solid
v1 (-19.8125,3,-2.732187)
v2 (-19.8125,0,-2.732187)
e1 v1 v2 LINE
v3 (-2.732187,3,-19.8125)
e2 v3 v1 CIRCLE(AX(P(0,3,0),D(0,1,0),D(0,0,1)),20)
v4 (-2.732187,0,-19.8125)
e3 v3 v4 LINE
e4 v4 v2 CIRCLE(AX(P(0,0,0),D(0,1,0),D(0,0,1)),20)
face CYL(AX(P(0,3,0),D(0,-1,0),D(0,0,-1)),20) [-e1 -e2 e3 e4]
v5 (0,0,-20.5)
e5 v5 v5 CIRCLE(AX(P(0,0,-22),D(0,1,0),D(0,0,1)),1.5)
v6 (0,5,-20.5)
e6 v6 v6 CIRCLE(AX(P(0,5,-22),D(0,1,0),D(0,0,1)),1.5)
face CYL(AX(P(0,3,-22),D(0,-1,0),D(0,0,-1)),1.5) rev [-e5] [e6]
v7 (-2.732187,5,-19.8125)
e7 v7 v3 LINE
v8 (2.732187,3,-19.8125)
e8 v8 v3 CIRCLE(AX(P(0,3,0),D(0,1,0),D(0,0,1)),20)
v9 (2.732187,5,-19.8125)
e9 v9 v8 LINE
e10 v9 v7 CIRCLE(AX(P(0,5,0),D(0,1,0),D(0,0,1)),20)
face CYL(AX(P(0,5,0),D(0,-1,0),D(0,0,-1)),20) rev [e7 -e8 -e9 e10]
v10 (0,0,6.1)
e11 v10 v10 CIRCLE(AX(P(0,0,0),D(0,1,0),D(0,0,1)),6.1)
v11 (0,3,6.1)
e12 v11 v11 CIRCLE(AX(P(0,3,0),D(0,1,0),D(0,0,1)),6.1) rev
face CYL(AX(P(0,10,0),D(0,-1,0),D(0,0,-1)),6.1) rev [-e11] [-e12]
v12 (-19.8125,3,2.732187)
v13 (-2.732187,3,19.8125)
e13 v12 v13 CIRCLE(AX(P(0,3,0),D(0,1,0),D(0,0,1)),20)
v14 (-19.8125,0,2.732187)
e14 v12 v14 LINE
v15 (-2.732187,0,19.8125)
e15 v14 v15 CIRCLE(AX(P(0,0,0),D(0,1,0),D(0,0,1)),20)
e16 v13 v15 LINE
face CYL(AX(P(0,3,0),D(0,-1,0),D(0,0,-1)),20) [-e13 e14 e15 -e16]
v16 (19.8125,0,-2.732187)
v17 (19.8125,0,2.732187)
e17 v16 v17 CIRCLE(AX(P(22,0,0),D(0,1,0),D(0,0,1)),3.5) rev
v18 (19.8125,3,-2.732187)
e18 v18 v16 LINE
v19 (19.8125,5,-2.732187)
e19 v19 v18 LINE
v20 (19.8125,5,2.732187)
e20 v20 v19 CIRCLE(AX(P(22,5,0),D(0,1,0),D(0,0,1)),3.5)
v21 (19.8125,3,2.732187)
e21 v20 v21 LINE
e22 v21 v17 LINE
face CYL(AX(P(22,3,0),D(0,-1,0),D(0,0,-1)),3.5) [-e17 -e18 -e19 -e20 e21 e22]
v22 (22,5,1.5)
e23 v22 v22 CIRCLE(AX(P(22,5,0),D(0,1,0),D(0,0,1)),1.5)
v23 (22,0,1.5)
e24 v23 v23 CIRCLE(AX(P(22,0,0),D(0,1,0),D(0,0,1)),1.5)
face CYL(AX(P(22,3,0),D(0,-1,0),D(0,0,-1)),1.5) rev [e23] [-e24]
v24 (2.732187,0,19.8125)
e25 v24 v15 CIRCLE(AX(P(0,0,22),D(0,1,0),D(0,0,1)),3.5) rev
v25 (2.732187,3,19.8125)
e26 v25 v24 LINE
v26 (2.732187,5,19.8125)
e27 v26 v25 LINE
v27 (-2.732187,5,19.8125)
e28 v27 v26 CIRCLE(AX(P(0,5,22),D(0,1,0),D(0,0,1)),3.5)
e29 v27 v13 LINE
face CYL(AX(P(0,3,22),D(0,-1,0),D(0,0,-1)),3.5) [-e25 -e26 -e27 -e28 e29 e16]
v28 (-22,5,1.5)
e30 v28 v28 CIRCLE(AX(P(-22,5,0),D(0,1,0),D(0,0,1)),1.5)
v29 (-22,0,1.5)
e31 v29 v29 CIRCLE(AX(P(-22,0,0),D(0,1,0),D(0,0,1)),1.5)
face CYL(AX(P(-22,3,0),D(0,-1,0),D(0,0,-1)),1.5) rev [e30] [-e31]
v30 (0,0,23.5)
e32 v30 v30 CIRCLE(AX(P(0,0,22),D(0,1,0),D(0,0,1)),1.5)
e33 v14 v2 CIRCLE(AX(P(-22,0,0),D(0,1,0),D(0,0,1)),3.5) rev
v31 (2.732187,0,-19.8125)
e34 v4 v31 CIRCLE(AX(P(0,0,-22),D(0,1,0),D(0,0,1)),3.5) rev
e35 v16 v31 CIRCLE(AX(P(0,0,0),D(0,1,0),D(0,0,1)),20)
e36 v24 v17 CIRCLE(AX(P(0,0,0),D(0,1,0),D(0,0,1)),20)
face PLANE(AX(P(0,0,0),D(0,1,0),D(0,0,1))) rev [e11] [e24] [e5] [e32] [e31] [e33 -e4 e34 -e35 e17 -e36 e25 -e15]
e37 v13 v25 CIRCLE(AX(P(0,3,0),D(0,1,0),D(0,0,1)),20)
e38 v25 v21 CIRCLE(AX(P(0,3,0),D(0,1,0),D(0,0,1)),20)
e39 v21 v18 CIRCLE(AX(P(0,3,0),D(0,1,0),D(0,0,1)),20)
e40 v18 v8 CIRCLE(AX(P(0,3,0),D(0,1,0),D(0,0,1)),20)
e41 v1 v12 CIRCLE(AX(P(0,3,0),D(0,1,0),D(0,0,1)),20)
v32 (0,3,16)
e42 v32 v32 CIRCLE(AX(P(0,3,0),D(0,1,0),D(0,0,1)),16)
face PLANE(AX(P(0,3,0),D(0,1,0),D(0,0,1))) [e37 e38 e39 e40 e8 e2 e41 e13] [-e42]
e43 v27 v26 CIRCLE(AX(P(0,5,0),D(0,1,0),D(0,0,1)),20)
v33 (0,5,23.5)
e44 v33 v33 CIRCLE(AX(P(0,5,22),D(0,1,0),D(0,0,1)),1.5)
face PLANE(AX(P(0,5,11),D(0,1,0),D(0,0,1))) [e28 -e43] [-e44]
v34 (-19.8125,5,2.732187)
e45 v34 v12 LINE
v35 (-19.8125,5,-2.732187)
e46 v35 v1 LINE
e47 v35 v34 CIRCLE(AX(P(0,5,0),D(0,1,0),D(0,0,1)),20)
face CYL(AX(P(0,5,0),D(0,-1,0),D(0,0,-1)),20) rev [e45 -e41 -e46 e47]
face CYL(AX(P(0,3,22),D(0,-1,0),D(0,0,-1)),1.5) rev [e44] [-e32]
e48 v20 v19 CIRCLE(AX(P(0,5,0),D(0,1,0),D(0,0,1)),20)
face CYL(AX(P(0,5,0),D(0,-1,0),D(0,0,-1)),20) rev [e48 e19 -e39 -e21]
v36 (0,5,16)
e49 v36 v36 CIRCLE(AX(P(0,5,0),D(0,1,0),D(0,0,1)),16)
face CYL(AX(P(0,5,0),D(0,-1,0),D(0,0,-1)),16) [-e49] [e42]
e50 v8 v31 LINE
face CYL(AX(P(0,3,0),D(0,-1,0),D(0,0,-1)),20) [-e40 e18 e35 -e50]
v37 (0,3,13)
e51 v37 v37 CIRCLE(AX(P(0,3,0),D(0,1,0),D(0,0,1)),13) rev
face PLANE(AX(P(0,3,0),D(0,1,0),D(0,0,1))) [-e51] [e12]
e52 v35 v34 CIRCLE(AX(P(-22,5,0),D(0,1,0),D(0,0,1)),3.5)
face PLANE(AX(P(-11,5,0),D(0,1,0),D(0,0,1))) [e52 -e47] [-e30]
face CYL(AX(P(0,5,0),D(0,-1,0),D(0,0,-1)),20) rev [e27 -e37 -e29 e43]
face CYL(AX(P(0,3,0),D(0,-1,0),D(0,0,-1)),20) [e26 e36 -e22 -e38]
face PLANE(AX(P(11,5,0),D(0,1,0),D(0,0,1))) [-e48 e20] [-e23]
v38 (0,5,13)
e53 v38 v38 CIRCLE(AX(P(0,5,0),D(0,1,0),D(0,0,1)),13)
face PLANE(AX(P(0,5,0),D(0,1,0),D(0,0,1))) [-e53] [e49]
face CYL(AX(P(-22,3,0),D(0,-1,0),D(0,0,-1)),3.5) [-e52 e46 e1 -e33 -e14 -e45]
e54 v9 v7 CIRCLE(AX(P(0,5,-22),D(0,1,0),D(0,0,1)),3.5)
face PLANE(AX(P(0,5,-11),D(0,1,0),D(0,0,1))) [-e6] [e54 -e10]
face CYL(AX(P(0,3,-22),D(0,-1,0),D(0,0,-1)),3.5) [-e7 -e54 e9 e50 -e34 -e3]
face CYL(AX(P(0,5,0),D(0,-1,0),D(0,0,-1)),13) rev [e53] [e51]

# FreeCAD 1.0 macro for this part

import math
import FreeCAD as App
import Part
import Sketcher
from FreeCAD import Vector

doc = App.newDocument("Part")
params = doc.addObject("Spreadsheet::Sheet", "Params")
for row, (alias, value) in enumerate([
    ("sketch1_diameter", "3 mm"),
    ("sketch1_radius", "20 mm"),
    ("sketch1_radius2", "3.5 mm"),
    ("pad1_length", "3 mm"),
    ("sketch2_diameter", "3 mm"),
    ("sketch2_diameter2", "32 mm"),
    ("sketch2_diameter3", "26 mm"),
    ("sketch2_radius", "20 mm"),
    ("sketch2_radius2", "3.5 mm"),
    ("pad2_length", "2 mm"),
    ("sketch3_diameter", "12.2 mm"),
    ("pocket1_length", "10 mm"),
], start=1):
    params.set(f"A{row}", alias)
    params.set(f"B{row}", "=" + value)
    params.setAlias(f"B{row}", alias)

body = doc.addObject("PartDesign::Body", "Body")

# Sketch on XZ plane
sketch1 = body.newObject("Sketcher::SketchObject", "Sketch")
sketch1.AttachmentSupport = (doc.getObject("XZ_Plane"), [""])
sketch1.MapMode = "FlatFace"
sketch1.addGeometry([
    Part.ArcOfCircle(Part.Circle(Vector(0, 0, 0), Vector(0, 0, 1), 20), math.radians(-82), math.radians(-8)),  # 0
    Part.ArcOfCircle(Part.Circle(Vector(0, -22, 0), Vector(0, 0, 1), 3.5), math.radians(141), math.radians(399)),  # 1
    Part.ArcOfCircle(Part.Circle(Vector(0, 0, 0), Vector(0, 0, 1), 20), math.radians(-172), math.radians(-98)),  # 2
    Part.ArcOfCircle(Part.Circle(Vector(-22, 0, 0), Vector(0, 0, 1), 3.5), math.radians(51), math.radians(309)),  # 3
    Part.ArcOfCircle(Part.Circle(Vector(0, 0, 0), Vector(0, 0, 1), 20), math.radians(98), math.radians(172)),  # 4
    Part.ArcOfCircle(Part.Circle(Vector(0, 22, 0), Vector(0, 0, 1), 3.5), math.radians(-39), math.radians(219)),  # 5
    Part.ArcOfCircle(Part.Circle(Vector(0, 0, 0), Vector(0, 0, 1), 20), math.radians(8), math.radians(82)),  # 6
    Part.ArcOfCircle(Part.Circle(Vector(22, 0, 0), Vector(0, 0, 1), 3.5), math.radians(-129), math.radians(129)),  # 7
    Part.Circle(Vector(0, 22, 0), Vector(0, 0, 1), 1.5),  # 8
    Part.Circle(Vector(-22, 0, 0), Vector(0, 0, 1), 1.5),  # 9
    Part.Circle(Vector(22, 0, 0), Vector(0, 0, 1), 1.5),  # 10
    Part.Circle(Vector(0, -22, 0), Vector(0, 0, 1), 1.5),  # 11
], False)
sketch1.addConstraint([
    Sketcher.Constraint("Coincident", 0, 1, 1, 2),
    Sketcher.Constraint("Coincident", 1, 1, 2, 2),
    Sketcher.Constraint("Coincident", 2, 1, 3, 2),
    Sketcher.Constraint("Coincident", 3, 1, 4, 2),
    Sketcher.Constraint("Coincident", 4, 1, 5, 2),
    Sketcher.Constraint("Coincident", 5, 1, 6, 2),
    Sketcher.Constraint("Coincident", 6, 1, 7, 2),
    Sketcher.Constraint("Coincident", 7, 1, 0, 2),
    Sketcher.Constraint("Coincident", 0, 3, -1, 1),
    Sketcher.Constraint("Coincident", 2, 3, -1, 1),
    Sketcher.Constraint("Coincident", 4, 3, -1, 1),
    Sketcher.Constraint("Coincident", 6, 3, -1, 1),
    Sketcher.Constraint("Coincident", 8, 3, 5, 3),
    Sketcher.Constraint("Coincident", 9, 3, 3, 3),
    Sketcher.Constraint("Coincident", 10, 3, 7, 3),
    Sketcher.Constraint("Coincident", 11, 3, 1, 3),
    Sketcher.Constraint("Equal", 0, 2),
    Sketcher.Constraint("Equal", 1, 3),
    Sketcher.Constraint("Equal", 2, 4),
    Sketcher.Constraint("Equal", 3, 5),
    Sketcher.Constraint("Equal", 4, 6),
    Sketcher.Constraint("Equal", 5, 7),
    Sketcher.Constraint("Equal", 8, 9),
    Sketcher.Constraint("Equal", 9, 10),
    Sketcher.Constraint("Equal", 10, 11),
    Sketcher.Constraint("Symmetric", 1, 3, 5, 3, -1, 1),
    Sketcher.Constraint("Symmetric", 3, 3, 7, 3, -1, 1),
    Sketcher.Constraint("PointOnObject", 1, 3, -2),
    Sketcher.Constraint("PointOnObject", 3, 3, -1),
    Sketcher.Constraint("Diameter", 8, 3.0),
    Sketcher.Constraint("Radius", 0, 20.0),
    Sketcher.Constraint("Radius", 1, 3.5),
    Sketcher.Constraint("DistanceY", 1, 3, -1, 1, 22.0),
    Sketcher.Constraint("DistanceX", 3, 3, -1, 1, 22.0),
])
sketch1.setExpression("Constraints[29]", "Params.sketch1_diameter")
sketch1.setExpression("Constraints[30]", "Params.sketch1_radius")
sketch1.setExpression("Constraints[31]", "Params.sketch1_radius2")
pad1 = body.newObject("PartDesign::Pad", "Pad")
pad1.Profile = sketch1
pad1.setExpression("Length", "Params.pad1_length")
pad1.Reversed = True

# Sketch on XZ plane
sketch2 = body.newObject("Sketcher::SketchObject", "Sketch001")
sketch2.AttachmentSupport = (doc.getObject("XZ_Plane"), [""])
sketch2.MapMode = "FlatFace"
sketch2.AttachmentOffset = App.Placement(Vector(0, 0, -3), App.Rotation())
sketch2.addGeometry([
    Part.ArcOfCircle(Part.Circle(Vector(0, 22, 0), Vector(0, 0, 1), 3.5), math.radians(-39), math.radians(219)),  # 0
    Part.ArcOfCircle(Part.Circle(Vector(0, 0, 0), Vector(0, 0, 1), 20), math.radians(82.15), math.radians(97.85)),  # 1
    Part.Circle(Vector(0, 22, 0), Vector(0, 0, 1), 1.5),  # 2
    Part.ArcOfCircle(Part.Circle(Vector(0, 0, 0), Vector(0, 0, 1), 20), math.radians(-7.85), math.radians(0)),  # 3
    Part.ArcOfCircle(Part.Circle(Vector(0, 0, 0), Vector(0, 0, 1), 20), math.radians(0), math.radians(7.85)),  # 4
    Part.ArcOfCircle(Part.Circle(Vector(22, 0, 0), Vector(0, 0, 1), 3.5), math.radians(-129), math.radians(129)),  # 5
    Part.Circle(Vector(22, 0, 0), Vector(0, 0, 1), 1.5),  # 6
    Part.ArcOfCircle(Part.Circle(Vector(0, 0, 0), Vector(0, 0, 1), 20), math.radians(-97.85), math.radians(-82.15)),  # 7
    Part.ArcOfCircle(Part.Circle(Vector(0, -22, 0), Vector(0, 0, 1), 3.5), math.radians(141), math.radians(399)),  # 8
    Part.Circle(Vector(0, -22, 0), Vector(0, 0, 1), 1.5),  # 9
    Part.ArcOfCircle(Part.Circle(Vector(0, 0, 0), Vector(0, 0, 1), 20), math.radians(172.15), math.radians(187.85)),  # 10
    Part.ArcOfCircle(Part.Circle(Vector(-22, 0, 0), Vector(0, 0, 1), 3.5), math.radians(51), math.radians(309)),  # 11
    Part.Circle(Vector(-22, 0, 0), Vector(0, 0, 1), 1.5),  # 12
    Part.Circle(Vector(0, 0, 0), Vector(0, 0, 1), 16),  # 13
    Part.Circle(Vector(0, 0, 0), Vector(0, 0, 1), 13),  # 14
], False)
sketch2.addConstraint([
    Sketcher.Constraint("Coincident", 0, 1, 1, 1),
    Sketcher.Constraint("Coincident", 1, 2, 0, 2),
    Sketcher.Constraint("Tangent", 3, 2, 4, 1),
    Sketcher.Constraint("Coincident", 4, 2, 5, 2),
    Sketcher.Constraint("Coincident", 5, 1, 3, 1),
    Sketcher.Constraint("Coincident", 7, 1, 8, 1),
    Sketcher.Constraint("Coincident", 8, 2, 7, 2),
    Sketcher.Constraint("Coincident", 10, 1, 11, 1),
    Sketcher.Constraint("Coincident", 11, 2, 10, 2),
    Sketcher.Constraint("Coincident", 1, 3, -1, 1),
    Sketcher.Constraint("Coincident", 3, 3, -1, 1),
    Sketcher.Constraint("Coincident", 7, 3, -1, 1),
    Sketcher.Constraint("Coincident", 10, 3, -1, 1),
    Sketcher.Constraint("Coincident", 13, 3, -1, 1),
    Sketcher.Constraint("Coincident", 14, 3, -1, 1),
    Sketcher.Constraint("Coincident", 2, 3, 0, 3),
    Sketcher.Constraint("Coincident", 6, 3, 5, 3),
    Sketcher.Constraint("Coincident", 9, 3, 8, 3),
    Sketcher.Constraint("Coincident", 12, 3, 11, 3),
    Sketcher.Constraint("Equal", 1, 3),
    Sketcher.Constraint("Equal", 3, 4),
    Sketcher.Constraint("Equal", 0, 5),
    Sketcher.Constraint("Equal", 2, 6),
    Sketcher.Constraint("Equal", 4, 7),
    Sketcher.Constraint("Equal", 5, 8),
    Sketcher.Constraint("Equal", 6, 9),
    Sketcher.Constraint("Equal", 7, 10),
    Sketcher.Constraint("Equal", 8, 11),
    Sketcher.Constraint("Equal", 9, 12),
    Sketcher.Constraint("Symmetric", 0, 3, 8, 3, -1, 1),
    Sketcher.Constraint("Symmetric", 5, 3, 11, 3, -1, 1),
    Sketcher.Constraint("PointOnObject", 0, 3, -2),
    Sketcher.Constraint("PointOnObject", 5, 3, -1),
    Sketcher.Constraint("PointOnObject", 3, 2, -1),
    Sketcher.Constraint("Diameter", 2, 3.0),
    Sketcher.Constraint("Diameter", 13, 32.0),
    Sketcher.Constraint("Diameter", 14, 26.0),
    Sketcher.Constraint("Radius", 1, 20.0),
    Sketcher.Constraint("Radius", 0, 3.5),
    Sketcher.Constraint("DistanceY", -1, 1, 0, 3, 22.0),
    Sketcher.Constraint("DistanceX", -1, 1, 5, 3, 22.0),
])
sketch2.setExpression("Constraints[34]", "Params.sketch2_diameter")
sketch2.setExpression("Constraints[35]", "Params.sketch2_diameter2")
sketch2.setExpression("Constraints[36]", "Params.sketch2_diameter3")
sketch2.setExpression("Constraints[37]", "Params.sketch2_radius")
sketch2.setExpression("Constraints[38]", "Params.sketch2_radius2")
pad2 = body.newObject("PartDesign::Pad", "Pad001")
pad2.Profile = sketch2
pad2.setExpression("Length", "Params.pad2_length")
pad2.Reversed = True

# Sketch on XZ plane
sketch3 = body.newObject("Sketcher::SketchObject", "Sketch002")
sketch3.AttachmentSupport = (doc.getObject("XZ_Plane"), [""])
sketch3.MapMode = "FlatFace"
sketch3.addGeometry(Part.Circle(Vector(0, 0, 0), Vector(0, 0, 1), 6), False)
sketch3.addConstraint([
    Sketcher.Constraint("Coincident", 0, 3, -1, 1),
    Sketcher.Constraint("Diameter", 0, 12.2),
])
sketch3.setExpression("Constraints[1]", "Params.sketch3_diameter")
pocket1 = body.newObject("PartDesign::Pocket", "Pocket")
pocket1.Profile = sketch3
pocket1.setExpression("Length", "Params.pocket1_length")

doc.recompute()
